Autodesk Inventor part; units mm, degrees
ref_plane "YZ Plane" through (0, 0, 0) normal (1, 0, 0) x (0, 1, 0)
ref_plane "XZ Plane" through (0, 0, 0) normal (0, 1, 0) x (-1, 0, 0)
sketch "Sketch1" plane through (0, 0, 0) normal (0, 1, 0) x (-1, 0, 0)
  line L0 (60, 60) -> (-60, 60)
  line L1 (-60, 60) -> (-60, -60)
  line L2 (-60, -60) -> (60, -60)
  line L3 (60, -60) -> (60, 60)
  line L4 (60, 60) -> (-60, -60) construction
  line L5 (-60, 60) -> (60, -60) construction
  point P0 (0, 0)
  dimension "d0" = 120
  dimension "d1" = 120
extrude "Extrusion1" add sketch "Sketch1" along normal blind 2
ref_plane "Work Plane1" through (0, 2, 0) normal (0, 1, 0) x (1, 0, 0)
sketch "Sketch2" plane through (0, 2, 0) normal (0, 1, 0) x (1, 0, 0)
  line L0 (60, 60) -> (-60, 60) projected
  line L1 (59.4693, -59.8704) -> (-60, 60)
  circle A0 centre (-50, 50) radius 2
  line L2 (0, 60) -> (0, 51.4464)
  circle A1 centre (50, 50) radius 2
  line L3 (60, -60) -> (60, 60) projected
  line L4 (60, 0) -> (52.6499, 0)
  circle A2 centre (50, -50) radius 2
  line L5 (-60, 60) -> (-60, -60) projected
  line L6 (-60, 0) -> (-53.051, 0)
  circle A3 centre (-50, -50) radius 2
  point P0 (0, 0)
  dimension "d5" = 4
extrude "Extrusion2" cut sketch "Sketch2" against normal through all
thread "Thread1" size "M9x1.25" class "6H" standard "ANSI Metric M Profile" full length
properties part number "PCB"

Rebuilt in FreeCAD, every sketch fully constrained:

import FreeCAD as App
import Part
import Sketcher
Q = App.Units.Quantity


def add_polygon(sketch, points):
    """Adds a closed chain of lines whose ends are joined by coincident constraints."""
    first, n = sketch.GeometryCount, len(points)
    for a, b in zip(points, points[1:] + points[:1]):
        sketch.addGeometry(Part.LineSegment(App.Vector(*a, 0), App.Vector(*b, 0)), False)
    for i in range(n):
        sketch.addConstraint(Sketcher.Constraint("Coincident", first + i, 2, first + (i + 1) % n, 1))

doc = App.newDocument("Part")
body = doc.addObject("PartDesign::Body", "Body")

# Sketch on XZ plane
sketch1 = body.newObject("Sketcher::SketchObject", "Sketch")
sketch1.AttachmentSupport = (doc.getObject("XZ_Plane"), [""])
sketch1.MapMode = "FlatFace"
add_polygon(sketch1, [(-60, -60), (-60, 60), (60, 60), (60, -60)])  # lines 0-3
sketch1.addConstraint(Sketcher.Constraint("Vertical", 0))
sketch1.addConstraint(Sketcher.Constraint("Horizontal", 1))
sketch1.addConstraint(Sketcher.Constraint("Vertical", 2))
sketch1.addConstraint(Sketcher.Constraint("Horizontal", 3))
sketch1.addConstraint(Sketcher.Constraint("Symmetric", 0, 2, 2, 2, -1, 1))
sketch1.addConstraint(Sketcher.Constraint("Equal", 3, 0))
sketch1.addConstraint(Sketcher.Constraint("DistanceX", 1, 1, 1, 2, Q("120 mm")))
pad1 = body.newObject("PartDesign::Pad", "Pad")
pad1.Profile = sketch1
pad1.Length = 2
pad1.Reversed = True

# Sketch on XZ plane
sketch2 = body.newObject("Sketcher::SketchObject", "Sketch001")
sketch2.AttachmentSupport = (doc.getObject("XZ_Plane"), [""])
sketch2.MapMode = "FlatFace"
sketch2.AttachmentOffset = App.Placement(App.Vector(0, 0, -2), App.Rotation())
sketch2.addGeometry(Part.Circle(App.Vector(50, 50, 0), App.Vector(0, 0, 1), 2), False)
sketch2.addGeometry(Part.Circle(App.Vector(-50, -50, 0), App.Vector(0, 0, 1), 2), False)
sketch2.addGeometry(Part.Circle(App.Vector(50, -50, 0), App.Vector(0, 0, 1), 2), False)
sketch2.addGeometry(Part.Circle(App.Vector(-50, 50, 0), App.Vector(0, 0, 1), 2), False)
sketch2.addConstraint(Sketcher.Constraint("Equal", 0, 1))
sketch2.addConstraint(Sketcher.Constraint("Equal", 1, 2))
sketch2.addConstraint(Sketcher.Constraint("Equal", 2, 3))
sketch2.addConstraint(Sketcher.Constraint("Symmetric", 0, 3, 1, 3, -1, 1))
sketch2.addConstraint(Sketcher.Constraint("Symmetric", 2, 3, 3, 3, -1, 1))
sketch2.addConstraint(Sketcher.Constraint("Symmetric", 1, 3, 2, 3, -2))
sketch2.addConstraint(Sketcher.Constraint("Diameter", 0, Q("4 mm")))
sketch2.addConstraint(Sketcher.Constraint("DistanceX", -1, 1, 0, 3, Q("50 mm")))
sketch2.addConstraint(Sketcher.Constraint("DistanceY", -1, 1, 0, 3, Q("50 mm")))
pocket1 = body.newObject("PartDesign::Pocket", "Pocket")
pocket1.Profile = sketch2
pocket1.Type = "ThroughAll"
pocket1.Reversed = True

doc.recompute()
